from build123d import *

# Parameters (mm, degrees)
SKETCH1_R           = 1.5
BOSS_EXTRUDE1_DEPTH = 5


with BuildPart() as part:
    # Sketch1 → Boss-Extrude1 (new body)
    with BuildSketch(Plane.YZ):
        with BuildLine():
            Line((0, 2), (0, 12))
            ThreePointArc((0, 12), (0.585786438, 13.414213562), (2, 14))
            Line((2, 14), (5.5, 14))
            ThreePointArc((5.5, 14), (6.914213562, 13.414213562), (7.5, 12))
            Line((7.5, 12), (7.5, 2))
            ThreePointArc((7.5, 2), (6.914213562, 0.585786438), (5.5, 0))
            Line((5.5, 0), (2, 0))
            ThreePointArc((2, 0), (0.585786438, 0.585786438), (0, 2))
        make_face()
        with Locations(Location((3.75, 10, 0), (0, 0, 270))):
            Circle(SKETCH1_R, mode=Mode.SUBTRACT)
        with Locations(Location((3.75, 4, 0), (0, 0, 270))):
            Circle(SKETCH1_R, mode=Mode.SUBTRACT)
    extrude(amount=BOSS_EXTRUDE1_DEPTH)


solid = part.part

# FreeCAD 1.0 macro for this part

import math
import FreeCAD as App
import Part
import Sketcher

V = App.Vector
Q = App.Units.Quantity

doc = App.newDocument("Part")
body = doc.addObject("PartDesign::Body", "Body")

# Sketch on YZ plane
sketch1 = body.newObject("Sketcher::SketchObject", "Sketch")
sketch1.AttachmentSupport = (doc.getObject("YZ_Plane"), [""])
sketch1.MapMode = "FlatFace"
sketch1.addGeometry(Part.LineSegment(V(0, 12, 0), V(0, 2, 0)), False)
sketch1.addGeometry(Part.ArcOfCircle(Part.Circle(V(2, 2, 0), V(0, 0, 1), 2), math.radians(-180), math.radians(-90)), False)
sketch1.addGeometry(Part.LineSegment(V(2, 0, 0), V(5.5, 0, 0)), False)
sketch1.addGeometry(Part.ArcOfCircle(Part.Circle(V(5.5, 2, 0), V(0, 0, 1), 2), math.radians(-90), math.radians(0)), False)
sketch1.addGeometry(Part.LineSegment(V(7.5, 2, 0), V(7.5, 12, 0)), False)
sketch1.addGeometry(Part.ArcOfCircle(Part.Circle(V(5.5, 12, 0), V(0, 0, 1), 2), math.radians(0), math.radians(90)), False)
sketch1.addGeometry(Part.LineSegment(V(5.5, 14, 0), V(2, 14, 0)), False)
sketch1.addGeometry(Part.ArcOfCircle(Part.Circle(V(2, 12, 0), V(0, 0, 1), 2), math.radians(90), math.radians(180)), False)
sketch1.addGeometry(Part.Circle(V(3.8, 4, 0), V(0, 0, 1), 1.5), False)
sketch1.addGeometry(Part.Circle(V(3.8, 10, 0), V(0, 0, 1), 1.5), False)
sketch1.addConstraint(Sketcher.Constraint("Tangent", 0, 2, 1, 1))
sketch1.addConstraint(Sketcher.Constraint("Tangent", 1, 2, 2, 1))
sketch1.addConstraint(Sketcher.Constraint("Tangent", 2, 2, 3, 1))
sketch1.addConstraint(Sketcher.Constraint("Tangent", 3, 2, 4, 1))
sketch1.addConstraint(Sketcher.Constraint("Tangent", 4, 2, 5, 1))
sketch1.addConstraint(Sketcher.Constraint("Tangent", 5, 2, 6, 1))
sketch1.addConstraint(Sketcher.Constraint("Tangent", 6, 2, 7, 1))
sketch1.addConstraint(Sketcher.Constraint("Tangent", 7, 2, 0, 1))
sketch1.addConstraint(Sketcher.Constraint("Vertical", 0))
sketch1.addConstraint(Sketcher.Constraint("Horizontal", 2))
sketch1.addConstraint(Sketcher.Constraint("Vertical", 4))
sketch1.addConstraint(Sketcher.Constraint("Horizontal", 6))
sketch1.addConstraint(Sketcher.Constraint("Equal", 1, 3))
sketch1.addConstraint(Sketcher.Constraint("Equal", 3, 5))
sketch1.addConstraint(Sketcher.Constraint("Equal", 5, 7))
sketch1.addConstraint(Sketcher.Constraint("Equal", 8, 9))
sketch1.addConstraint(Sketcher.Constraint("PointOnObject", 0, 2, -2))
sketch1.addConstraint(Sketcher.Constraint("PointOnObject", 1, 2, -1))
sketch1.addConstraint(Sketcher.Constraint("Vertical", 8, 3, 9, 3))
sketch1.addConstraint(Sketcher.Constraint("Diameter", 8, Q("3 mm")))
sketch1.addConstraint(Sketcher.Constraint("Radius", 1, Q("2 mm")))
sketch1.addConstraint(Sketcher.Constraint("DistanceY", 0, 2, 0, 1, Q("10 mm")))
sketch1.addConstraint(Sketcher.Constraint("DistanceX", 2, 1, 2, 2, Q("3.5 mm")))
sketch1.addConstraint(Sketcher.Constraint("DistanceY", -1, 1, 8, 3, Q("4 mm")))
sketch1.addConstraint(Sketcher.Constraint("DistanceY", -1, 1, 9, 3, Q("10 mm")))
sketch1.addConstraint(Sketcher.Constraint("DistanceX", -1, 1, 8, 3, Q("3.75 mm")))
pad1 = body.newObject("PartDesign::Pad", "Pad")
pad1.Profile = sketch1
pad1.Length = 5

doc.recompute()
